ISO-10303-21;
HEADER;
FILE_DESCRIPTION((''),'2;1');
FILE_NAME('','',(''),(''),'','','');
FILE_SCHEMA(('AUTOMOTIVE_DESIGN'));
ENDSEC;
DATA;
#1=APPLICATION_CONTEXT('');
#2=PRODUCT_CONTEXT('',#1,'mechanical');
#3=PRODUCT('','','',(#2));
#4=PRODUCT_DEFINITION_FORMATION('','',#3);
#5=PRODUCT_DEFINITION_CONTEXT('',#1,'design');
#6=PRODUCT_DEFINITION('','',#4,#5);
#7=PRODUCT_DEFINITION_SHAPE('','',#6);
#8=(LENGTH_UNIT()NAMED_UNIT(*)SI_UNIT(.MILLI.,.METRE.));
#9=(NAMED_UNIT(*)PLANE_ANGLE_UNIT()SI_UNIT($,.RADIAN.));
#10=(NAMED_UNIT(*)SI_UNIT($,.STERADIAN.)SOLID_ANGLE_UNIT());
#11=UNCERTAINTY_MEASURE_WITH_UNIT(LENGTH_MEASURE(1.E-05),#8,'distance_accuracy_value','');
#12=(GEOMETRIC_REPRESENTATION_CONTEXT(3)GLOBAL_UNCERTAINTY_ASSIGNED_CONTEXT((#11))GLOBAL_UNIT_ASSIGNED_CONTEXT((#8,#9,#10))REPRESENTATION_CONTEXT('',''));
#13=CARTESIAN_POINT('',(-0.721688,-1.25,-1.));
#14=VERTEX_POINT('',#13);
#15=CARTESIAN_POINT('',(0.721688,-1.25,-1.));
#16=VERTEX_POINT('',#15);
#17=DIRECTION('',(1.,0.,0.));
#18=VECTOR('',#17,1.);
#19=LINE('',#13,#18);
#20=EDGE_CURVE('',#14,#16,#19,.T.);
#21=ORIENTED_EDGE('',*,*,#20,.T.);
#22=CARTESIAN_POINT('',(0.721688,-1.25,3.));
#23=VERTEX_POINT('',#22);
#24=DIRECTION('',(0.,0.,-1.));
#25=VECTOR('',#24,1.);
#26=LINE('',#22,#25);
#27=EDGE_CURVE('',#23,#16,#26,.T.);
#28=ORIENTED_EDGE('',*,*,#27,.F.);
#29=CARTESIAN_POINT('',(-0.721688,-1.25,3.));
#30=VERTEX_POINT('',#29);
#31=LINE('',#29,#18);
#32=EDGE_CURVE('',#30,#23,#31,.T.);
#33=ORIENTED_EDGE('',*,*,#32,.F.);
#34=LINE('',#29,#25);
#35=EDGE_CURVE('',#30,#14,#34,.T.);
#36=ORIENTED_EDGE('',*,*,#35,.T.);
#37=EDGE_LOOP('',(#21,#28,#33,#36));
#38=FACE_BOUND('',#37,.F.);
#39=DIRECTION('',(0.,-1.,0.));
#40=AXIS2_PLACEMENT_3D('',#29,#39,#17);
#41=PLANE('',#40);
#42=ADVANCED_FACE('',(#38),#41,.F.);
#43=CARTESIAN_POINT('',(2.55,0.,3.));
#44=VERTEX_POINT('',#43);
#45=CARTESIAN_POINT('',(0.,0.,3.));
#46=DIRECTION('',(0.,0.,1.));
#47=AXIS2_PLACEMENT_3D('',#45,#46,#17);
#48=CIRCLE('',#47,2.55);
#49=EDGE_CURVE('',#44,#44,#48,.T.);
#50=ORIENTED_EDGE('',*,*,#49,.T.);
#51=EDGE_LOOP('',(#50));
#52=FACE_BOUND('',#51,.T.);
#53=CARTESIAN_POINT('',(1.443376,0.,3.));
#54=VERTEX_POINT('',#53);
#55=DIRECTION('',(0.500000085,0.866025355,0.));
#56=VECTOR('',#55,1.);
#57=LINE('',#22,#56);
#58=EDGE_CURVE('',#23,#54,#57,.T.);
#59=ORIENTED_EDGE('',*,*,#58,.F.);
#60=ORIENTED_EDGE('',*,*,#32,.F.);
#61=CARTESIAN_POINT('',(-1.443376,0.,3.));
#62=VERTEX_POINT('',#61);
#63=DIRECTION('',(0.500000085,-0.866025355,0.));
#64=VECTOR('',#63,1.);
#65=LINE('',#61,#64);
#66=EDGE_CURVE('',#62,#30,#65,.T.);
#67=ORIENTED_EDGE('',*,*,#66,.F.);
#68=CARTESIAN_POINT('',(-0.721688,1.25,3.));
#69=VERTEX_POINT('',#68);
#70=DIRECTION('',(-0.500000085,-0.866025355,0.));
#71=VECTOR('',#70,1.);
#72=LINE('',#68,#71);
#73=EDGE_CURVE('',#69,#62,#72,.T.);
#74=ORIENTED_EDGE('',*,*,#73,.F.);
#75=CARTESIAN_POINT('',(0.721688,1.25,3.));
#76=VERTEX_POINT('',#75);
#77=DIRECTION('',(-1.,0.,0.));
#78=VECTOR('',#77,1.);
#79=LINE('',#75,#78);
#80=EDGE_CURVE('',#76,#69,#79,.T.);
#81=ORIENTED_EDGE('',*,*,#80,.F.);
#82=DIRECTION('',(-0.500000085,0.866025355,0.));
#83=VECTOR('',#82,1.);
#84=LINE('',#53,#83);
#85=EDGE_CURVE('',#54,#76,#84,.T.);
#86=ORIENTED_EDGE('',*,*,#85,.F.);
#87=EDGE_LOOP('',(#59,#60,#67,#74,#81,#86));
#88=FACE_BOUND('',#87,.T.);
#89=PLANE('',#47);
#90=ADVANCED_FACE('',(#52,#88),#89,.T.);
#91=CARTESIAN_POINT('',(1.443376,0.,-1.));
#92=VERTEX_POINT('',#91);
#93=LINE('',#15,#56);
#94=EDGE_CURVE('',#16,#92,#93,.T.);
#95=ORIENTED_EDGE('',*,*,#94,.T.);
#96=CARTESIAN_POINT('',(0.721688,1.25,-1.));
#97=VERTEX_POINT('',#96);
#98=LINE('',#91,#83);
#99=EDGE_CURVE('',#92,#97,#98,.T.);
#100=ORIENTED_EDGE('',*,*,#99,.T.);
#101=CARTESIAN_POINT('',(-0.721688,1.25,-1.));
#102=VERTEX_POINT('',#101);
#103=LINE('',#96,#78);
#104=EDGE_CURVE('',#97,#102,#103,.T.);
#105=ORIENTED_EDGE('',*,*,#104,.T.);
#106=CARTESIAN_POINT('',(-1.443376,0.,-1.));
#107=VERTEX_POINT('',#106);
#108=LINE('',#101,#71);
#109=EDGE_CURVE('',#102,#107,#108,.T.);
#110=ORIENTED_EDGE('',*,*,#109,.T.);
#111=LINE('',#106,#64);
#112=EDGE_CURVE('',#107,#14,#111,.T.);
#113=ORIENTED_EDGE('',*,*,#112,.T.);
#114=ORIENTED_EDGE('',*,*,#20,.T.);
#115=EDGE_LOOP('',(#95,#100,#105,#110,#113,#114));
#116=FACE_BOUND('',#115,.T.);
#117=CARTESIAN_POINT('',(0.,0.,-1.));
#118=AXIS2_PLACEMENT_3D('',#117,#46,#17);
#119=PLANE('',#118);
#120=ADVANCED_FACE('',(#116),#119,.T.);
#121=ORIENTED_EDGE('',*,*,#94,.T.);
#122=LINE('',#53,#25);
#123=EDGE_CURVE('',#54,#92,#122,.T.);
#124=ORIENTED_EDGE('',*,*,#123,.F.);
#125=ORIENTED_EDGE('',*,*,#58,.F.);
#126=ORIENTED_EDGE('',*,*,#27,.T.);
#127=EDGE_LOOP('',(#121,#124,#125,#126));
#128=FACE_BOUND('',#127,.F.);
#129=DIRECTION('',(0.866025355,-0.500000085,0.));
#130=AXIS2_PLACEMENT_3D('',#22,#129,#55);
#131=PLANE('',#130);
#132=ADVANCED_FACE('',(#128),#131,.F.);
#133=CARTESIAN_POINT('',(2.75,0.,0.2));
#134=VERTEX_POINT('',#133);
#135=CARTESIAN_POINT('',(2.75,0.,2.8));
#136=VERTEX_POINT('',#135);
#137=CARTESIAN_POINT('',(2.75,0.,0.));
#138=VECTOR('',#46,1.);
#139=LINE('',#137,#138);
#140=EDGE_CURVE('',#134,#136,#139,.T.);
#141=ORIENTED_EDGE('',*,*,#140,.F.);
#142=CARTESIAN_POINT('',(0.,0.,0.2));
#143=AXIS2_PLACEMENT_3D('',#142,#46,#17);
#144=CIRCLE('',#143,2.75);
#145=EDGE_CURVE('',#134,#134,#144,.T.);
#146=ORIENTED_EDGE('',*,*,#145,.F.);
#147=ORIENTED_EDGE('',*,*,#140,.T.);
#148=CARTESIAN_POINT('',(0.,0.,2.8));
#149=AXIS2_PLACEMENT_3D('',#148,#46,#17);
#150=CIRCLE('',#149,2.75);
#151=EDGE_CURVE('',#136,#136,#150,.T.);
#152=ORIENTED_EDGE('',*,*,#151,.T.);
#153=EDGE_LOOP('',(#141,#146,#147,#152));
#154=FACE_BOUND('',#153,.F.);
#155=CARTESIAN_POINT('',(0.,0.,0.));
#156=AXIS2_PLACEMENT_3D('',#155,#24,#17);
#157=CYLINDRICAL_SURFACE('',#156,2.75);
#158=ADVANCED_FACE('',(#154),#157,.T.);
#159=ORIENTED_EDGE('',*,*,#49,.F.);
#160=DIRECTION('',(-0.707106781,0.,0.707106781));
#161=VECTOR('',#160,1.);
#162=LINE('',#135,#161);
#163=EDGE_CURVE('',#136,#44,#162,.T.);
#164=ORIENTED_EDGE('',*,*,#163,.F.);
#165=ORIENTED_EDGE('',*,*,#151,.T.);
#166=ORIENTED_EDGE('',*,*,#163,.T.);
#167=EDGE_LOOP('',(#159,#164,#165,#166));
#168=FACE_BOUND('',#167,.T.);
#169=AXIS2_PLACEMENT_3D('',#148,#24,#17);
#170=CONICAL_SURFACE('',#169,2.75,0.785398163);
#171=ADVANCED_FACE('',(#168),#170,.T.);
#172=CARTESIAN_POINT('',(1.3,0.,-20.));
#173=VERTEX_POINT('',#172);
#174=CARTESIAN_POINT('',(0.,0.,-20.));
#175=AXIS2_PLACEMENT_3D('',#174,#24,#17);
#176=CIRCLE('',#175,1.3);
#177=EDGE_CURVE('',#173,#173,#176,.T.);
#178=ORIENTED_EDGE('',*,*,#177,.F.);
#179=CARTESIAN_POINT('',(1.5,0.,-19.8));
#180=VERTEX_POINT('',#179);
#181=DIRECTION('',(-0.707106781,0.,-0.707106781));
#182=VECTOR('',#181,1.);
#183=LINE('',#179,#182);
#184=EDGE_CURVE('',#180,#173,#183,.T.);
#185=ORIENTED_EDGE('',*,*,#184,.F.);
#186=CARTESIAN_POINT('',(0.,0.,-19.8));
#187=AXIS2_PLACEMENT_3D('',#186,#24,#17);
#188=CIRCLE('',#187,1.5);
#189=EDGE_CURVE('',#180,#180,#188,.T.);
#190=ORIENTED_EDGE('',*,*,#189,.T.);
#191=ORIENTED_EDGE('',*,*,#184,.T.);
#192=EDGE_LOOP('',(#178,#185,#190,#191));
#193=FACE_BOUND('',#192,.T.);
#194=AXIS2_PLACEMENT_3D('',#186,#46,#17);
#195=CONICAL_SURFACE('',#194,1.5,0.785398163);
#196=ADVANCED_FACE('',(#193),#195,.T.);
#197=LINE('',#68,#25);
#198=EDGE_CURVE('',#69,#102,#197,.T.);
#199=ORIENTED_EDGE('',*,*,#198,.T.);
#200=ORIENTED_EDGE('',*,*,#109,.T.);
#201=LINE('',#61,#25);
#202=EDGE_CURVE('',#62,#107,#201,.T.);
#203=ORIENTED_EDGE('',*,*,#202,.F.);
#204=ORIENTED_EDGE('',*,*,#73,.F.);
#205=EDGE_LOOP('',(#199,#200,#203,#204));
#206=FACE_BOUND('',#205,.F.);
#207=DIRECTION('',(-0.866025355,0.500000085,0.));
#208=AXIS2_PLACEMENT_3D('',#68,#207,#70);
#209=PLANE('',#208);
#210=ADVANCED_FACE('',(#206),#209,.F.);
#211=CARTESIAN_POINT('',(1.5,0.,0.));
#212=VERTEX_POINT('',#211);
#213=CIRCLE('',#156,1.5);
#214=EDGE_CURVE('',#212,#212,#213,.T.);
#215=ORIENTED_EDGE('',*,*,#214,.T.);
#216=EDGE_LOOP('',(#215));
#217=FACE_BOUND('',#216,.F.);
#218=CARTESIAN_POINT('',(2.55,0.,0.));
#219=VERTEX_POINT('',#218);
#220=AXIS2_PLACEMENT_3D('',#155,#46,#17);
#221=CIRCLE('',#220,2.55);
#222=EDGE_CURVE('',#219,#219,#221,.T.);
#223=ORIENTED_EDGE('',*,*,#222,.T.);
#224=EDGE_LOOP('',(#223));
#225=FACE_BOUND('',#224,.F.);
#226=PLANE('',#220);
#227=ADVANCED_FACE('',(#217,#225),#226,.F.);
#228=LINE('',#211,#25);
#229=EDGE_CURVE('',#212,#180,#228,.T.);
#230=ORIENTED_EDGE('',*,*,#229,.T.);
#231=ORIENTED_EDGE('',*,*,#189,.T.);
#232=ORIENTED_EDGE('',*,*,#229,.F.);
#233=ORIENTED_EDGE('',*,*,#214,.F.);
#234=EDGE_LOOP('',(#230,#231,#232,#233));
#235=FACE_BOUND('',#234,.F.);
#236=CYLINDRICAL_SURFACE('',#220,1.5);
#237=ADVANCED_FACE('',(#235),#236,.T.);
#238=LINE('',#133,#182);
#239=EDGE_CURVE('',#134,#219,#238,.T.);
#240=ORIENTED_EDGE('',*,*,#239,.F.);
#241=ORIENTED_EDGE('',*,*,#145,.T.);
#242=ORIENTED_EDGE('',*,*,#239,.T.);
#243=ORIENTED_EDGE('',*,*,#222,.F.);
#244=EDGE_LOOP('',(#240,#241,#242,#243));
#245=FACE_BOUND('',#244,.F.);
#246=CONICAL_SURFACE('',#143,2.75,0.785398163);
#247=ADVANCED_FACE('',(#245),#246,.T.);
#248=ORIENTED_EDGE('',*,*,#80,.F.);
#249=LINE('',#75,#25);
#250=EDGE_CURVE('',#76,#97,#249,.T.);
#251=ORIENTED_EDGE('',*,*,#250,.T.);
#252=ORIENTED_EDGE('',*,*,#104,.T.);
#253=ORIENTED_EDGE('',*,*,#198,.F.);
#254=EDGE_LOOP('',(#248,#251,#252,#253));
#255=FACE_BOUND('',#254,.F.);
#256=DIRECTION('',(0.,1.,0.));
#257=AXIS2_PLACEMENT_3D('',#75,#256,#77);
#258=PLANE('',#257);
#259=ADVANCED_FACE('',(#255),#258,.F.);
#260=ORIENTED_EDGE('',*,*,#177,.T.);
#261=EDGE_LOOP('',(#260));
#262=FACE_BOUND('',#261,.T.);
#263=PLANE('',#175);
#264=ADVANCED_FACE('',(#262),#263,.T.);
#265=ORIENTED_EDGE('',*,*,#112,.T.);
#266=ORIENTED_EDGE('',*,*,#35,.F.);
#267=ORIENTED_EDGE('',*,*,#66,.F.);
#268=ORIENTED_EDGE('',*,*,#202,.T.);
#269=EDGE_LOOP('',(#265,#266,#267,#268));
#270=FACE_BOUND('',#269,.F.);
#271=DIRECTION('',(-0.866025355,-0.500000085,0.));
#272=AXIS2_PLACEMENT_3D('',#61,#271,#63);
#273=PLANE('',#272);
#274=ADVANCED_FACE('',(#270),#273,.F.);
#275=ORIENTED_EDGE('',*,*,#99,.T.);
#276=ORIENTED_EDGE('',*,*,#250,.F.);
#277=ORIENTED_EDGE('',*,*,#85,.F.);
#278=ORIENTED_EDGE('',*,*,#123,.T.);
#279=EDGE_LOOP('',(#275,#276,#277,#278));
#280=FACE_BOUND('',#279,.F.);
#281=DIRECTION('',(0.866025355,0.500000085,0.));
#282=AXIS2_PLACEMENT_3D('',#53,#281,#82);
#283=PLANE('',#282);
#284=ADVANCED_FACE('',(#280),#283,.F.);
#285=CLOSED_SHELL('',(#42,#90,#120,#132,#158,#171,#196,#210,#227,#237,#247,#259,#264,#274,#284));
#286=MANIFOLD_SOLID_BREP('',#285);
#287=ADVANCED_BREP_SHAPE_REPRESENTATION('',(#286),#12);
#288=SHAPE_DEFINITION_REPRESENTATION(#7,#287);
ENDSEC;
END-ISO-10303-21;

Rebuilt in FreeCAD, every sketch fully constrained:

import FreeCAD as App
import Part
import Sketcher
from FreeCAD import Vector
Q = App.Units.Quantity


def edges_at(feature, points):
    """Names of the edges that pass closest to the given points."""
    edges = feature.Shape.Edges
    near = lambda p: min(range(len(edges)), key=lambda i: edges[i].distToShape(Part.Vertex(*p))[0])
    return sorted({f"Edge{near(p) + 1}" for p in points})

doc = App.newDocument("Part")
params = doc.addObject("Spreadsheet::Sheet", "Params")
for row, (alias, value) in enumerate([
    ("sketch1_diameter", "5.5 mm"),
    ("pad1_length", "3 mm"),
    ("sketch2_diameter", "3 mm"),
    ("pad2_length", "20 mm"),
    ("pocket1_length", "4 mm"),
    ("chamfer_size", "0.2 mm"),
], start=1):
    params.set(f"A{row}", alias)
    params.set(f"B{row}", "=" + value)
    params.setAlias(f"B{row}", alias)

body = doc.addObject("PartDesign::Body", "Body")

# Sketch on XY plane
sketch1 = body.newObject("Sketcher::SketchObject", "Sketch")
sketch1.AttachmentSupport = (doc.getObject("XY_Plane"), [""])
sketch1.MapMode = "FlatFace"
sketch1.addGeometry(Part.Circle(Vector(0, 0, 0), Vector(0, 0, 1), 2.8), False)
sketch1.addConstraint([
    Sketcher.Constraint("Coincident", 0, 3, -1, 1),
    Sketcher.Constraint("Diameter", 0, Q("5.5 mm")),
])
sketch1.setExpression("Constraints[1]", "Params.sketch1_diameter")
pad1 = body.newObject("PartDesign::Pad", "Pad")
pad1.Profile = sketch1
pad1.setExpression("Length", "Params.pad1_length")

# Sketch on XY plane
sketch2 = body.newObject("Sketcher::SketchObject", "Sketch001")
sketch2.AttachmentSupport = (doc.getObject("XY_Plane"), [""])
sketch2.MapMode = "FlatFace"
sketch2.addGeometry(Part.Circle(Vector(0, 0, 0), Vector(0, 0, 1), 1.5), False)
sketch2.addConstraint([
    Sketcher.Constraint("Coincident", 0, 3, -1, 1),
    Sketcher.Constraint("Diameter", 0, Q("3 mm")),
])
sketch2.setExpression("Constraints[1]", "Params.sketch2_diameter")
pad2 = body.newObject("PartDesign::Pad", "Pad001")
pad2.Profile = sketch2
pad2.setExpression("Length", "Params.pad2_length")
pad2.Reversed = True

# Sketch on XY plane
sketch3 = body.newObject("Sketcher::SketchObject", "Sketch002")
sketch3.AttachmentSupport = (doc.getObject("XY_Plane"), [""])
sketch3.MapMode = "FlatFace"
sketch3.AttachmentOffset = App.Placement(Vector(0, 0, 3), App.Rotation())
sketch3.addGeometry([
    Part.LineSegment(Vector(0.7, -1.2, 0), Vector(1.4, 0, 0)),  # 0
    Part.LineSegment(Vector(1.4, 0, 0), Vector(0.7, 1.2, 0)),  # 1
    Part.LineSegment(Vector(0.7, 1.2, 0), Vector(-0.7, 1.2, 0)),  # 2
    Part.LineSegment(Vector(-0.7, 1.2, 0), Vector(-1.4, 0, 0)),  # 3
    Part.LineSegment(Vector(-1.4, 0, 0), Vector(-0.7, -1.2, 0)),  # 4
    Part.LineSegment(Vector(-0.7, -1.2, 0), Vector(0.7, -1.2, 0)),  # 5
], False)
sketch3.addConstraint([
    Sketcher.Constraint("Coincident", 0, 2, 1, 1),
    Sketcher.Constraint("Coincident", 1, 2, 2, 1),
    Sketcher.Constraint("Coincident", 2, 2, 3, 1),
    Sketcher.Constraint("Coincident", 3, 2, 4, 1),
    Sketcher.Constraint("Coincident", 4, 2, 5, 1),
    Sketcher.Constraint("Coincident", 5, 2, 0, 1),
    Sketcher.Constraint("Horizontal", 2),
    Sketcher.Constraint("Horizontal", 5),
    Sketcher.Constraint("Symmetric", 0, 2, 3, 2, -1, 1),
    Sketcher.Constraint("Symmetric", 1, 2, 4, 2, -1, 1),
    Sketcher.Constraint("PointOnObject", 0, 2, -1),
    Sketcher.Constraint("Parallel", 0, 3),
    Sketcher.Constraint("Vertical", 2, 2, 4, 2),
    Sketcher.Constraint("Angle", 0, Q("59.999994 deg")),
    Sketcher.Constraint("DistanceY", 4, 2, 2, 2, Q("2.5 mm")),
    Sketcher.Constraint("DistanceX", 2, 2, 2, 1, Q("1.443376 mm")),
])
pocket1 = body.newObject("PartDesign::Pocket", "Pocket")
pocket1.Profile = sketch3
pocket1.setExpression("Length", "Params.pocket1_length")
doc.recompute()

chamfer = body.newObject("PartDesign::Chamfer", "Chamfer")
chamfer.Base = (pocket1, edges_at(pocket1, [(-1.5, 0, -20), (-2.75, 0, 0), (-2.75, 0, 3)]))
chamfer.setExpression("Size", "Params.chamfer_size")

doc.recompute()
